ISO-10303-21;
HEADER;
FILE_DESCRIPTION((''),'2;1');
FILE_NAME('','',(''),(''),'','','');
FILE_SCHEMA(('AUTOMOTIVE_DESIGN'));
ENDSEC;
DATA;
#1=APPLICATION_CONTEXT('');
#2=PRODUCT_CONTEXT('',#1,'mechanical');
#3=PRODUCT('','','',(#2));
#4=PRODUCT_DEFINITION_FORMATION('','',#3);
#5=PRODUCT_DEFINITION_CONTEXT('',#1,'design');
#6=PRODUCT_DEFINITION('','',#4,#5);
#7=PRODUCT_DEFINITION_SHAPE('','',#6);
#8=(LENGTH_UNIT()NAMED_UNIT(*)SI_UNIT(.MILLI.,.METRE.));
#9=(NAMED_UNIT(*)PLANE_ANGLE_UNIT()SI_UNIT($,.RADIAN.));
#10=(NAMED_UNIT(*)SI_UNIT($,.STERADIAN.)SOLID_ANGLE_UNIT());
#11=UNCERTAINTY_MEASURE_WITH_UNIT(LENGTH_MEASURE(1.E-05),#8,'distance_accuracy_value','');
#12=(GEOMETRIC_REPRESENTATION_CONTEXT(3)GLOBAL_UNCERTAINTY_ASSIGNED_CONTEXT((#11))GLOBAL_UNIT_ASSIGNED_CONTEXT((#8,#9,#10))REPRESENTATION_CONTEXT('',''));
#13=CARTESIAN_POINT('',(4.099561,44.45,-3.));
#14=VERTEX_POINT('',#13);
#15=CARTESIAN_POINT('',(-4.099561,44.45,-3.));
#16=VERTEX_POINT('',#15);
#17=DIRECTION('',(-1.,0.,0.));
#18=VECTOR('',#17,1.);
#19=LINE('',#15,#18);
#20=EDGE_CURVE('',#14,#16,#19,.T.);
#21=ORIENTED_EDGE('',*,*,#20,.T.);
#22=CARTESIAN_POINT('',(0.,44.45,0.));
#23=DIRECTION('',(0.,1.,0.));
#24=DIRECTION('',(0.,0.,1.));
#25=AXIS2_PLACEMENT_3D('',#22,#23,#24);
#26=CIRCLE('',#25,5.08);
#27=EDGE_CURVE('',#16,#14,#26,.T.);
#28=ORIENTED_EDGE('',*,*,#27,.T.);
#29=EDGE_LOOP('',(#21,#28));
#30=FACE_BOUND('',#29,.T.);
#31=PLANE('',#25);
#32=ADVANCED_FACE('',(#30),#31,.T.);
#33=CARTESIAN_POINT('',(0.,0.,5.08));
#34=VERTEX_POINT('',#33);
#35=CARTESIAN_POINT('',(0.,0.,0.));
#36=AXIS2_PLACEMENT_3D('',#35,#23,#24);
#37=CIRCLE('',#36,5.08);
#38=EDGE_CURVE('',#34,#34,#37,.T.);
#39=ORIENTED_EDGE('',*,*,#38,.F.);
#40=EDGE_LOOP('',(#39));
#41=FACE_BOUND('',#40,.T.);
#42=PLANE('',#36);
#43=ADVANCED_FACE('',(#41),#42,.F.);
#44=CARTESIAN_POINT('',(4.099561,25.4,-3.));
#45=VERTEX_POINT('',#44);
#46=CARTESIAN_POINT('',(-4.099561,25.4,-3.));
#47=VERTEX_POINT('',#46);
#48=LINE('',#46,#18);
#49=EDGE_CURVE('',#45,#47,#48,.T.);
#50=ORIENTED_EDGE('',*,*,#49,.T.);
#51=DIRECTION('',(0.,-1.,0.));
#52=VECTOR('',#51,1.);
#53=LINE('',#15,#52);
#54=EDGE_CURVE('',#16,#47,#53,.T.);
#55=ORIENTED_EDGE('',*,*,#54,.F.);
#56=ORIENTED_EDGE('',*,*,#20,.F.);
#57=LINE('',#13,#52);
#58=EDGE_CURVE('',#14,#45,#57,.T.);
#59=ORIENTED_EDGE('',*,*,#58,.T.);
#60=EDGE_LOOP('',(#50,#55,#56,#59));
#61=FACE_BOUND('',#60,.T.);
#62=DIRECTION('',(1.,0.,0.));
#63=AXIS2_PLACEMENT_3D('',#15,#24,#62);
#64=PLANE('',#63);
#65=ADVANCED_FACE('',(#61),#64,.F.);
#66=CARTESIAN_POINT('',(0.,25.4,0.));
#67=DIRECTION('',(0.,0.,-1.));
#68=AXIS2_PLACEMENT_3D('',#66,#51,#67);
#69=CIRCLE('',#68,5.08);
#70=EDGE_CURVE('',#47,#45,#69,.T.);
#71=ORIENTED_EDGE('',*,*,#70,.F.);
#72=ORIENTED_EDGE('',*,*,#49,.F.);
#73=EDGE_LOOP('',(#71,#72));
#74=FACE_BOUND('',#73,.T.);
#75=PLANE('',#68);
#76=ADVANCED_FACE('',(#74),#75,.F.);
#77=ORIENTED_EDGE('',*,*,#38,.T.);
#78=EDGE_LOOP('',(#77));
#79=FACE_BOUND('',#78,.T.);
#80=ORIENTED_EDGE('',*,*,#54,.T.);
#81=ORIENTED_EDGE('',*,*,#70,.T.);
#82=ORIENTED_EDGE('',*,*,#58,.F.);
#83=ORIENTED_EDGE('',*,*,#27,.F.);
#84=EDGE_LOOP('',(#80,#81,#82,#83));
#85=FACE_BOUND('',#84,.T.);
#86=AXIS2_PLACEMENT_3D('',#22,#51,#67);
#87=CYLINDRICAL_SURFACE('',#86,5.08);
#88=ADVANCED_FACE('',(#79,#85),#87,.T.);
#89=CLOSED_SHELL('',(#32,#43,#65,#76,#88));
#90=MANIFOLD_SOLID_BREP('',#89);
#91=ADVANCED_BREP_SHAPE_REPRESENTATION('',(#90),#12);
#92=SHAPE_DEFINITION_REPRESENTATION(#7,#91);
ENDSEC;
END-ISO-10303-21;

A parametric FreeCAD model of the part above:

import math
import FreeCAD as App
import Part
import Sketcher
from FreeCAD import Vector
Q = App.Units.Quantity

doc = App.newDocument("Part")
body = doc.addObject("PartDesign::Body", "Body")

sketch1 = doc.addObject("Sketcher::SketchObject", "Sketch")
body.addObject(sketch1)
sketch1.AttachmentSupport = (doc.XZ_Plane, [""])
sketch1.MapMode = "FlatFace"
sketch1.addGeometry([
    Part.LineSegment(Vector(4, -3, 0), Vector(-4, -3, 0)),
    Part.ArcOfCircle(Part.Circle(Vector(0, 0, 0), Vector(0, 0, 1), 5), math.radians(-36), math.radians(216)),
], False)
sketch1.addConstraint([
    Sketcher.Constraint("Coincident", 0, 1, 1, 1),
    Sketcher.Constraint("Coincident", 1, 2, 0, 2),
    Sketcher.Constraint("Horizontal", 0),
    Sketcher.Constraint("Coincident", 1, 3, -1, 1),
    Sketcher.Constraint("Radius", 1, Q("0.2 in")),
    Sketcher.Constraint("DistanceX", 0, 2, 0, 1, Q("0.3228001 in")),
])
pad1 = doc.addObject("PartDesign::Pad", "Pad")
body.addObject(pad1)
pad1.Profile = sketch1
pad1.Length = Q("1.75 in")
pad1.Reversed = True

sketch2 = doc.addObject("Sketcher::SketchObject", "Sketch001")
body.addObject(sketch2)
sketch2.AttachmentSupport = (doc.XZ_Plane, [""])
sketch2.MapMode = "FlatFace"
sketch2.addGeometry([
    Part.LineSegment(Vector(4, -3, 0), Vector(-4, -3, 0)),
    Part.ArcOfCircle(Part.Circle(Vector(0, 0, 0), Vector(0, 0, 1), 5), math.radians(-144), math.radians(-36)),
], False)
sketch2.addConstraint([
    Sketcher.Constraint("Coincident", 0, 1, 1, 2),
    Sketcher.Constraint("Coincident", 1, 1, 0, 2),
    Sketcher.Constraint("Horizontal", 0),
    Sketcher.Constraint("Coincident", 1, 3, -1, 1),
    Sketcher.Constraint("Radius", 1, Q("0.2 in")),
    Sketcher.Constraint("DistanceX", 0, 2, 0, 1, Q("0.3228001 in")),
])
pad2 = doc.addObject("PartDesign::Pad", "Pad001")
body.addObject(pad2)
pad2.Profile = sketch2
pad2.Length = Q("1 in")
pad2.Reversed = True

doc.recompute()
